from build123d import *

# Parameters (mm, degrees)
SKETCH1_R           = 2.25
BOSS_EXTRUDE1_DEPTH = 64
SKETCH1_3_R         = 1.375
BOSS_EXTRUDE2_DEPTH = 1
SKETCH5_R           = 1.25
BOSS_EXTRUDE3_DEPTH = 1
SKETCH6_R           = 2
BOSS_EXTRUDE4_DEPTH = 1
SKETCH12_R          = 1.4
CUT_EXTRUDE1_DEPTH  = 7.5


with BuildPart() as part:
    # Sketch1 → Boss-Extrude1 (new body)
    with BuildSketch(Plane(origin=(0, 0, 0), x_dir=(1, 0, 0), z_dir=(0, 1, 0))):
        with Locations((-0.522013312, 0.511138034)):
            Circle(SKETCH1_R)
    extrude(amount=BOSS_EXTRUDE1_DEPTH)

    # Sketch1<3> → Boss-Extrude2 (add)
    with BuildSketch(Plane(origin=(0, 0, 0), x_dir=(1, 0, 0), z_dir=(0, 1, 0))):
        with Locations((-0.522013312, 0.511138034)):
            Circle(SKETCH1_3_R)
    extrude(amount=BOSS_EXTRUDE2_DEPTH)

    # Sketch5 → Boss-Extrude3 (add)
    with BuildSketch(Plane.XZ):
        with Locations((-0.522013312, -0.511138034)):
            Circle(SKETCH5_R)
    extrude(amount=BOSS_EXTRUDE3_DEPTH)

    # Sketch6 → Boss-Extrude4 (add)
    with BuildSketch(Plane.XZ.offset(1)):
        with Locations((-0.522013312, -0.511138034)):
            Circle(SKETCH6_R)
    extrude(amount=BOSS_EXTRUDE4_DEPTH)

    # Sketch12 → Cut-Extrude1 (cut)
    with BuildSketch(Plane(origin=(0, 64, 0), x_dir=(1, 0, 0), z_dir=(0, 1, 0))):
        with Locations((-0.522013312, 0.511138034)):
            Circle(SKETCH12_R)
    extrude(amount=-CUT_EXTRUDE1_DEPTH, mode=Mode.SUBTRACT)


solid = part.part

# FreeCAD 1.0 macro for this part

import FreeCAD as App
import Part
import Sketcher

V = App.Vector
Q = App.Units.Quantity

doc = App.newDocument("Part")
body = doc.addObject("PartDesign::Body", "Body")

# Sketch on XZ plane
sketch1 = body.newObject("Sketcher::SketchObject", "Sketch")
sketch1.AttachmentSupport = (doc.getObject("XZ_Plane"), [""])
sketch1.MapMode = "FlatFace"
sketch1.addGeometry(Part.Circle(V(-0.5, -0.5, 0), V(0, 0, 1), 2.2), False)
sketch1.addConstraint(Sketcher.Constraint("Diameter", 0, Q("4.5 mm")))
sketch1.addConstraint(Sketcher.Constraint("DistanceY", 0, 3, -1, 1, Q("0.511138 mm")))
sketch1.addConstraint(Sketcher.Constraint("DistanceX", 0, 3, -1, 1, Q("0.522013 mm")))
pad1 = body.newObject("PartDesign::Pad", "Pad")
pad1.Profile = sketch1
pad1.Length = 64
pad1.Reversed = True

# Sketch on XZ plane
sketch2 = body.newObject("Sketcher::SketchObject", "Sketch001")
sketch2.AttachmentSupport = (doc.getObject("XZ_Plane"), [""])
sketch2.MapMode = "FlatFace"
sketch2.addGeometry(Part.Circle(V(-0.5, -0.5, 0), V(0, 0, 1), 1.4), False)
sketch2.addConstraint(Sketcher.Constraint("Diameter", 0, Q("2.75 mm")))
sketch2.addConstraint(Sketcher.Constraint("DistanceY", 0, 3, -1, 1, Q("0.511138 mm")))
sketch2.addConstraint(Sketcher.Constraint("DistanceX", 0, 3, -1, 1, Q("0.522013 mm")))
pad2 = body.newObject("PartDesign::Pad", "Pad001")
pad2.Profile = sketch2
pad2.Length = 1
pad2.Reversed = True

# Sketch on XZ plane
sketch3 = body.newObject("Sketcher::SketchObject", "Sketch002")
sketch3.AttachmentSupport = (doc.getObject("XZ_Plane"), [""])
sketch3.MapMode = "FlatFace"
sketch3.addGeometry(Part.Circle(V(-0.5, -0.5, 0), V(0, 0, 1), 1.2), False)
sketch3.addConstraint(Sketcher.Constraint("Diameter", 0, Q("2.5 mm")))
sketch3.addConstraint(Sketcher.Constraint("DistanceY", 0, 3, -1, 1, Q("0.511138 mm")))
sketch3.addConstraint(Sketcher.Constraint("DistanceX", 0, 3, -1, 1, Q("0.522013 mm")))
pad3 = body.newObject("PartDesign::Pad", "Pad002")
pad3.Profile = sketch3
pad3.Length = 1

# Sketch on XZ plane
sketch4 = body.newObject("Sketcher::SketchObject", "Sketch003")
sketch4.AttachmentSupport = (doc.getObject("XZ_Plane"), [""])
sketch4.MapMode = "FlatFace"
sketch4.AttachmentOffset = App.Placement(V(0, 0, 1), App.Rotation())
sketch4.addGeometry(Part.Circle(V(-0.5, -0.5, 0), V(0, 0, 1), 2), False)
sketch4.addConstraint(Sketcher.Constraint("Diameter", 0, Q("4 mm")))
sketch4.addConstraint(Sketcher.Constraint("DistanceY", 0, 3, -1, 1, Q("0.511138 mm")))
sketch4.addConstraint(Sketcher.Constraint("DistanceX", 0, 3, -1, 1, Q("0.522013 mm")))
pad4 = body.newObject("PartDesign::Pad", "Pad003")
pad4.Profile = sketch4
pad4.Length = 1

# Sketch on XZ plane
sketch5 = body.newObject("Sketcher::SketchObject", "Sketch004")
sketch5.AttachmentSupport = (doc.getObject("XZ_Plane"), [""])
sketch5.MapMode = "FlatFace"
sketch5.AttachmentOffset = App.Placement(V(0, 0, -64), App.Rotation())
sketch5.addGeometry(Part.Circle(V(-0.5, -0.5, 0), V(0, 0, 1), 1.4), False)
sketch5.addConstraint(Sketcher.Constraint("Diameter", 0, Q("2.8 mm")))
sketch5.addConstraint(Sketcher.Constraint("DistanceY", 0, 3, -1, 1, Q("0.511138 mm")))
sketch5.addConstraint(Sketcher.Constraint("DistanceX", 0, 3, -1, 1, Q("0.522013 mm")))
pocket1 = body.newObject("PartDesign::Pocket", "Pocket")
pocket1.Profile = sketch5
pocket1.Length = 7.5
pocket1.Reversed = True

doc.recompute()
